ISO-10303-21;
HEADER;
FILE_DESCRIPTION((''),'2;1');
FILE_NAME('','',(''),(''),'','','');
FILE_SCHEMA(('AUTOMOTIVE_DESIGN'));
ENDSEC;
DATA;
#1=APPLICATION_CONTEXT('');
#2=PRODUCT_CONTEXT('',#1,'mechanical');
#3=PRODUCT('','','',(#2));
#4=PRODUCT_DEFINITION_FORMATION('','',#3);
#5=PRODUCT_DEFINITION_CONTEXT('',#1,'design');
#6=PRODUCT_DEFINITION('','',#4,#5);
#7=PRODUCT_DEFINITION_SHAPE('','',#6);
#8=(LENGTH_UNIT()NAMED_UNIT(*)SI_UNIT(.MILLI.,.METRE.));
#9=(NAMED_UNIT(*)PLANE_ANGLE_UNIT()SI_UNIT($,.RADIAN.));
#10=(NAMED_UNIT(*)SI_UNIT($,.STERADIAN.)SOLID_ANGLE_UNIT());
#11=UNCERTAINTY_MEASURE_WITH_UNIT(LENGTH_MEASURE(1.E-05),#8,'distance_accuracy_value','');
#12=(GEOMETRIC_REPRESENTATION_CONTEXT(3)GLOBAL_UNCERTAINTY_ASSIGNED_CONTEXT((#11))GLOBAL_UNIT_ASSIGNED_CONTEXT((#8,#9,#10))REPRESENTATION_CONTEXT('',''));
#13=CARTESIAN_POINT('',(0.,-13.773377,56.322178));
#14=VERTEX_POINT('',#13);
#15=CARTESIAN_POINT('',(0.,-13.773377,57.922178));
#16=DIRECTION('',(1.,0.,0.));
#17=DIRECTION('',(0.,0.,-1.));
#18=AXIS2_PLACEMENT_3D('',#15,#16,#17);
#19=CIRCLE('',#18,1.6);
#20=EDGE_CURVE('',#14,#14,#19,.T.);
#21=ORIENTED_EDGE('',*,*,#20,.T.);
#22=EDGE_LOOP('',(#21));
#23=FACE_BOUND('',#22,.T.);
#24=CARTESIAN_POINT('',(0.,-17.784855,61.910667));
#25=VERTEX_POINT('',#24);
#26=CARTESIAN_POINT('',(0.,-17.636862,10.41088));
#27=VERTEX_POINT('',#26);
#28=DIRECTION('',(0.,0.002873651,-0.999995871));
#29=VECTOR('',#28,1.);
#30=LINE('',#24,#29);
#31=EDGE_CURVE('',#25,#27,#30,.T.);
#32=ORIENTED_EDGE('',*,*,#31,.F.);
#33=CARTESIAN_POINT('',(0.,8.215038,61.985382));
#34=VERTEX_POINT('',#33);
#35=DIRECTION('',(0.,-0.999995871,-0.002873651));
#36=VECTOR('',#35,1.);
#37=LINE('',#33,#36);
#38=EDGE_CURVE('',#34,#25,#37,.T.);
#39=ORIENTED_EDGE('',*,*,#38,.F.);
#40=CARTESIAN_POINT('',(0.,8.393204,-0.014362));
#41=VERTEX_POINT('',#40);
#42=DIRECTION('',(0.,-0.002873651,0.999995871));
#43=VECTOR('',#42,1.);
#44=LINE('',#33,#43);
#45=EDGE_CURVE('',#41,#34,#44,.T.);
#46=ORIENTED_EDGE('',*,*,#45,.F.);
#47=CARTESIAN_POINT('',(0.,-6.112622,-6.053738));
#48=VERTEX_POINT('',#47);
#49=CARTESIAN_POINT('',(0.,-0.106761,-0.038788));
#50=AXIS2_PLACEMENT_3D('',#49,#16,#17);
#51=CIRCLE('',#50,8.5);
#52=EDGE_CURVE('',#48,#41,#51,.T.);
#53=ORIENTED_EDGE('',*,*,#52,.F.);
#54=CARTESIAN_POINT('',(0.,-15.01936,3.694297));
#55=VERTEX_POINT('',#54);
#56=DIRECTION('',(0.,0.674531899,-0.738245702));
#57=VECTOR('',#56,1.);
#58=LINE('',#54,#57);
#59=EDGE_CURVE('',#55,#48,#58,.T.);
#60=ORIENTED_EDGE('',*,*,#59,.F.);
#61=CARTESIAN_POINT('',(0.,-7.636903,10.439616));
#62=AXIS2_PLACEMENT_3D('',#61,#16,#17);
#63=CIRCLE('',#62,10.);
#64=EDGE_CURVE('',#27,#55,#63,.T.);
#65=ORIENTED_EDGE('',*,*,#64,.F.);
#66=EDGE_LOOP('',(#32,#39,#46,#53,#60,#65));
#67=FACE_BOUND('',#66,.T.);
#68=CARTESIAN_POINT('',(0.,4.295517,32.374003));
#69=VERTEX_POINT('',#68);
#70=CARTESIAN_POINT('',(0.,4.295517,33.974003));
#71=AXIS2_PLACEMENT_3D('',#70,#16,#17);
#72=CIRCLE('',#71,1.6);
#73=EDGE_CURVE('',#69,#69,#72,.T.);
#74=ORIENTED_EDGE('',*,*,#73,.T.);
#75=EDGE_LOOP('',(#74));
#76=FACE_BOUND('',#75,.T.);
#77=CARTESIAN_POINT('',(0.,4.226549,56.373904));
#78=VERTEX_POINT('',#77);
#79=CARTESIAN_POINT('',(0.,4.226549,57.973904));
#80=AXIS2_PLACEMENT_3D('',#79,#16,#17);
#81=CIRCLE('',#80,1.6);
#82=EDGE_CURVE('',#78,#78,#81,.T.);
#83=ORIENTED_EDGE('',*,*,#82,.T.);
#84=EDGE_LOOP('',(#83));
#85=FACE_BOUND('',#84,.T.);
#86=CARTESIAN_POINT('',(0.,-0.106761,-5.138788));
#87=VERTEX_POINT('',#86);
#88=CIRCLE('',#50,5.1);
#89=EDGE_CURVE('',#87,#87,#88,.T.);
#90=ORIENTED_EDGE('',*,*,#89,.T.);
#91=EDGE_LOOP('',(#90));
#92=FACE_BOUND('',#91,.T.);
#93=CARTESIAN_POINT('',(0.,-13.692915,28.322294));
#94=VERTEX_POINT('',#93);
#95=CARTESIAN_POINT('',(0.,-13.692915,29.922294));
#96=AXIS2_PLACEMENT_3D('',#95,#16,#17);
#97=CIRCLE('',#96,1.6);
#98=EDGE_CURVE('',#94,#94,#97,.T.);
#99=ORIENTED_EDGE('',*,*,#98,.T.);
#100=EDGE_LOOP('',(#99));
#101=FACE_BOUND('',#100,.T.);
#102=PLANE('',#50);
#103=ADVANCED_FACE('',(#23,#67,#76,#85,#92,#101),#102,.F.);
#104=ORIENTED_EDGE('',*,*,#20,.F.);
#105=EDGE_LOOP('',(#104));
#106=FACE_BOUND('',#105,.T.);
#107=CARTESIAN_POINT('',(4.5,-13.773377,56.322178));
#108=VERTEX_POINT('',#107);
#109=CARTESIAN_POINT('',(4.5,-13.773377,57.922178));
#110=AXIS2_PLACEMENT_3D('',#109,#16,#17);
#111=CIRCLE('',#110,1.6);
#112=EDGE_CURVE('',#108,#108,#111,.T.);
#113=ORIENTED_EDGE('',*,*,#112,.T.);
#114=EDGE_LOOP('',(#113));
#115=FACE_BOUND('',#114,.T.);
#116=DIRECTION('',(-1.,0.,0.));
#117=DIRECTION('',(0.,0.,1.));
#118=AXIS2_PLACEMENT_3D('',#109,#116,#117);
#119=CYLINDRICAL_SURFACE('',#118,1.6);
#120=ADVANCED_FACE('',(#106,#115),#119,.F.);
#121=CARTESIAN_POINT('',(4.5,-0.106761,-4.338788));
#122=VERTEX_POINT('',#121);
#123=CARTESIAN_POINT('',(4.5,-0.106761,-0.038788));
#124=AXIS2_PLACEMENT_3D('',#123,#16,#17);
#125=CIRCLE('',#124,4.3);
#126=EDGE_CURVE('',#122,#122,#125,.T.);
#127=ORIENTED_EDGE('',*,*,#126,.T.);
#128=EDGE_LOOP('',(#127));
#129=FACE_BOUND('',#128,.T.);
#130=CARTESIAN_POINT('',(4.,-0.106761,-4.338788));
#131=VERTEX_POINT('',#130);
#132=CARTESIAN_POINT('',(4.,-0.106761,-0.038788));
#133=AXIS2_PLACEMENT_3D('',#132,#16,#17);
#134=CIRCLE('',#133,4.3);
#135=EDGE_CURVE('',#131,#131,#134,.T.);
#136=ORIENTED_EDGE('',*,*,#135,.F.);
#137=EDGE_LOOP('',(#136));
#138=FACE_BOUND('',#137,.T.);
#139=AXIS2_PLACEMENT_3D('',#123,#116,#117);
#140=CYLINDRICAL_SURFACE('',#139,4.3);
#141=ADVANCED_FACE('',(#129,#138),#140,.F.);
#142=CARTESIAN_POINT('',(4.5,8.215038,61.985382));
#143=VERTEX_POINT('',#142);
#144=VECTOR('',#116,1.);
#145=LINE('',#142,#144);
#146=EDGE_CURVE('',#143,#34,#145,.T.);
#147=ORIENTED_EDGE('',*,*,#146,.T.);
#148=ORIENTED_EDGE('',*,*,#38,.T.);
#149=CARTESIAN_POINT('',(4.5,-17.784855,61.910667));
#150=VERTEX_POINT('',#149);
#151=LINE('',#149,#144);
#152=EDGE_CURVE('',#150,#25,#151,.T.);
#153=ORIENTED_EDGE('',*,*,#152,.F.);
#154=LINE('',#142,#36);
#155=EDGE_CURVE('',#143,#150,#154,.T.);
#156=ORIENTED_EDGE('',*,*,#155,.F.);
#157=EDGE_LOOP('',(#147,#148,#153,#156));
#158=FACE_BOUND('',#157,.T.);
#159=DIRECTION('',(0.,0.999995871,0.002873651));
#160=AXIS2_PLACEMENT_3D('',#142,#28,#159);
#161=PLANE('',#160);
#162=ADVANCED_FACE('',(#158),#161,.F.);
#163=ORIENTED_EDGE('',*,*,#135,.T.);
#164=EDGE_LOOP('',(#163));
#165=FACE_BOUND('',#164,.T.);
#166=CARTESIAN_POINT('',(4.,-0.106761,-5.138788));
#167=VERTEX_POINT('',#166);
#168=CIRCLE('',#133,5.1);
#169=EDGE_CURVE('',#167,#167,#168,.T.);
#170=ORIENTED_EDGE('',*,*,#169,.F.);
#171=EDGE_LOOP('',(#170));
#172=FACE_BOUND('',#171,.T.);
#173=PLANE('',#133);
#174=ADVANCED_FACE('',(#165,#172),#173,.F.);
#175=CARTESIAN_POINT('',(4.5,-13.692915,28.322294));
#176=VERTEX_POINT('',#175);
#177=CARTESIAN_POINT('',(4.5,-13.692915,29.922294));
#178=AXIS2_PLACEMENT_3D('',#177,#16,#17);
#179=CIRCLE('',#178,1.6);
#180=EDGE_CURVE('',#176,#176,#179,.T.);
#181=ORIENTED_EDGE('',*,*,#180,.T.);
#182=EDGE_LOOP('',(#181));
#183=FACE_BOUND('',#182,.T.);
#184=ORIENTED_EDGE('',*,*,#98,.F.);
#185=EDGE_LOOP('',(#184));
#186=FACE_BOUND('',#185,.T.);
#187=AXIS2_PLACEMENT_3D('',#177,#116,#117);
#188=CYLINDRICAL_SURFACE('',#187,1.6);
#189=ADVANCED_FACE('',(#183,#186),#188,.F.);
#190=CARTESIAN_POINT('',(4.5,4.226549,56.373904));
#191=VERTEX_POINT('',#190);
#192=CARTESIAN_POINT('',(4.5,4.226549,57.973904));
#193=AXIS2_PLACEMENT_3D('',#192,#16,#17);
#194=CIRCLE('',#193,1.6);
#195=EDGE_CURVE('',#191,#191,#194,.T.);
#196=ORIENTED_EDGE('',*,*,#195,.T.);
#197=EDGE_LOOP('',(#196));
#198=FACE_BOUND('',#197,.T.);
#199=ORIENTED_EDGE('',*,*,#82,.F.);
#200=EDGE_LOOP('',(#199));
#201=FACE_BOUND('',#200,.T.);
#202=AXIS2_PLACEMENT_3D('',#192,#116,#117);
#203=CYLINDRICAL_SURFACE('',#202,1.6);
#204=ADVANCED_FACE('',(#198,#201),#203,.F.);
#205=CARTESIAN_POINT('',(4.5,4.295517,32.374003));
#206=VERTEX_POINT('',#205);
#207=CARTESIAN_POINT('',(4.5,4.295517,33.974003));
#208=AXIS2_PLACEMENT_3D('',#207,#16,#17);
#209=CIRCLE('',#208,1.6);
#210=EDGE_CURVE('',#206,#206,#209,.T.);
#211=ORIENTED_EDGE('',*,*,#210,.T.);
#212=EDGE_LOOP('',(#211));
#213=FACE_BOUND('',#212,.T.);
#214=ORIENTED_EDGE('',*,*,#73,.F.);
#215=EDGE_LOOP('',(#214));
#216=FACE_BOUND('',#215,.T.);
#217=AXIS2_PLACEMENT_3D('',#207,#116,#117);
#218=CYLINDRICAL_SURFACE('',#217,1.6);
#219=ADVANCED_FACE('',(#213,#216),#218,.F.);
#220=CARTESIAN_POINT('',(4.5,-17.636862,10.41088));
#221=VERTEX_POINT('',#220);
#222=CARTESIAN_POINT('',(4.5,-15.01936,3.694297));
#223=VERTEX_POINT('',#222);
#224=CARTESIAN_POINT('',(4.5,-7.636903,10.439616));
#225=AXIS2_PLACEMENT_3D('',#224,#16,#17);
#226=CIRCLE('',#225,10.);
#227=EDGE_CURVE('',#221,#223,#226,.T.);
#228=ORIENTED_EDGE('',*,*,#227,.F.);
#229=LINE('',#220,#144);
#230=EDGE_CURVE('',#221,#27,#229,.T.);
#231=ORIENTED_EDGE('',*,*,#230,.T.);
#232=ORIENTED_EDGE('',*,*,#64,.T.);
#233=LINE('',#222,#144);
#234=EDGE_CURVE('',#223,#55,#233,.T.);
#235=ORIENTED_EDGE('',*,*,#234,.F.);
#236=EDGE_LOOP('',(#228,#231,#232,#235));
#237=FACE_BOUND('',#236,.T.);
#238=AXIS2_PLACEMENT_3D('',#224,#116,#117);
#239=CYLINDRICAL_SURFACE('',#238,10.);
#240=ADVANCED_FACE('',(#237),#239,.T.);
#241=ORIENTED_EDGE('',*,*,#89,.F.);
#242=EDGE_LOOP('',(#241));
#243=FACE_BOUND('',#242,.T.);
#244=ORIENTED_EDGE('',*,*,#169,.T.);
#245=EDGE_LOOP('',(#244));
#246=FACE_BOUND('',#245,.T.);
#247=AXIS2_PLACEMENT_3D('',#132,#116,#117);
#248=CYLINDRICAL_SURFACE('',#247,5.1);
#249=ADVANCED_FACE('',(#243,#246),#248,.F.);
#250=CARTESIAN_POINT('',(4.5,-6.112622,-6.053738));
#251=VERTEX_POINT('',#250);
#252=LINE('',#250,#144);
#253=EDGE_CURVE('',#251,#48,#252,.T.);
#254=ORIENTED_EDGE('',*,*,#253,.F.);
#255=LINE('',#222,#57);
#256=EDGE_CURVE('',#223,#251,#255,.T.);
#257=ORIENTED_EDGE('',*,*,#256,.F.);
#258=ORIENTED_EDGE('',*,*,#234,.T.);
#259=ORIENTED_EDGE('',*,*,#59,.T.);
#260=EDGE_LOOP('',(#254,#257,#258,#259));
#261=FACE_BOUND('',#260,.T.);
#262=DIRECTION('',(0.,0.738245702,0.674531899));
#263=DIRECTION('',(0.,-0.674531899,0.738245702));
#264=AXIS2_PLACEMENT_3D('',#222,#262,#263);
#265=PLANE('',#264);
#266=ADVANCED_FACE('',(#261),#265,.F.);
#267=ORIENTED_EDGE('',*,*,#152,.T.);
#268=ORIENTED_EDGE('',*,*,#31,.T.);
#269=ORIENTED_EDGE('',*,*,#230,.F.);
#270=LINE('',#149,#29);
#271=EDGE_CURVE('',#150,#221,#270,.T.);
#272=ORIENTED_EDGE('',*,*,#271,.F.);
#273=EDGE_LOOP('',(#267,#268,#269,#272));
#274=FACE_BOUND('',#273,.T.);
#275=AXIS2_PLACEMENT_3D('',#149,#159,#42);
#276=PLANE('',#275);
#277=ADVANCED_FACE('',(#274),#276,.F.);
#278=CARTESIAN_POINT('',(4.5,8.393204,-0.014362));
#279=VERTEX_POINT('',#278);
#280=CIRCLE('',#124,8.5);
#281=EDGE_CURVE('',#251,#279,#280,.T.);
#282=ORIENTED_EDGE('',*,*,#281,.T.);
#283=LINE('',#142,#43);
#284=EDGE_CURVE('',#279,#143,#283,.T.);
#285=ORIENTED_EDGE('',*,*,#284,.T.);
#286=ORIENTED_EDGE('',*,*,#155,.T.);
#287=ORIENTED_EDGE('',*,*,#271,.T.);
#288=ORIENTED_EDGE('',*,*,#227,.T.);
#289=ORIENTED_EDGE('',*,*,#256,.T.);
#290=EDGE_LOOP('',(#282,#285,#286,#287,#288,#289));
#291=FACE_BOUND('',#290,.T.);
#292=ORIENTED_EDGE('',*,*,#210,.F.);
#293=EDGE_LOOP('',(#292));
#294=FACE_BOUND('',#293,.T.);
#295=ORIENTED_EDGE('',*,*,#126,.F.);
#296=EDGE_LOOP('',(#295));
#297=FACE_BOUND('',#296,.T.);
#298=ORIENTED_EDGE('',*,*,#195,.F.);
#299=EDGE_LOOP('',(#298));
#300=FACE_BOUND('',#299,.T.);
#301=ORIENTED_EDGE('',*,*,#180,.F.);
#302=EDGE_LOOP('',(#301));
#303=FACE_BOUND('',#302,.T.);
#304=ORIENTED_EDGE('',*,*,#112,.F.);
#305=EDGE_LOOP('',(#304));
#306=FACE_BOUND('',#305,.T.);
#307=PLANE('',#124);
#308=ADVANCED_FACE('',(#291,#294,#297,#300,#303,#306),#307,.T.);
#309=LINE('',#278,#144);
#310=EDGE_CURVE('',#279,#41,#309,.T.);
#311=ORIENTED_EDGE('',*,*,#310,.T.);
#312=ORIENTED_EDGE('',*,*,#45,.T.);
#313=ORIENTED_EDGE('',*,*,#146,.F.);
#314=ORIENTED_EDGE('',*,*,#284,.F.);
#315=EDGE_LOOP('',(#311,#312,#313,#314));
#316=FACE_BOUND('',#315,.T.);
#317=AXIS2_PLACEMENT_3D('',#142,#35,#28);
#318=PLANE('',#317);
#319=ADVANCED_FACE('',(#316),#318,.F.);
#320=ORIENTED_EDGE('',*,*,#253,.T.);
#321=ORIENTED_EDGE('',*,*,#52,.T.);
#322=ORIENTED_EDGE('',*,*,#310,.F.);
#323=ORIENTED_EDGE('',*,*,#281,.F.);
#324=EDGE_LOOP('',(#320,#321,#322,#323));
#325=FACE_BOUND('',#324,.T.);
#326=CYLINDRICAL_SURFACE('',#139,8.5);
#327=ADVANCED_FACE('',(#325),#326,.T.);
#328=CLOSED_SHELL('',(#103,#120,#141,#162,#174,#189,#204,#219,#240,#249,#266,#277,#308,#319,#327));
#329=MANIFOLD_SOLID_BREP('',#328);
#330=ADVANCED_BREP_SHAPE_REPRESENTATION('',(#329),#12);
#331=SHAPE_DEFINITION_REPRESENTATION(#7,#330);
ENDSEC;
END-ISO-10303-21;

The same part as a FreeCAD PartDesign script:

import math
import FreeCAD as App
import Part
import Sketcher

V = App.Vector

doc = App.newDocument("Part")
body = doc.addObject("PartDesign::Body", "Body")

# Sketch on YZ plane
sketch1 = body.newObject("Sketcher::SketchObject", "Sketch")
sketch1.AttachmentSupport = (doc.getObject("YZ_Plane"), [""])
sketch1.MapMode = "FlatFace"
sketch1.addGeometry(Part.LineSegment(V(-17.8, 61.9, 0), V(-17.6, 10.4, 0)), False)
sketch1.addGeometry(Part.ArcOfCircle(Part.Circle(V(-7.6, 10.4, 0), V(0, 0, 1), 10), math.radians(-180), math.radians(-138)), False)
sketch1.addGeometry(Part.LineSegment(V(-15, 3.7, 0), V(-6.1, -6.1, 0)), False)
sketch1.addGeometry(Part.ArcOfCircle(Part.Circle(V(-0.1, 0, 0), V(0, 0, 1), 8.5), math.radians(-135), math.radians(0)), False)
sketch1.addGeometry(Part.LineSegment(V(8.4, 0, 0), V(8.2, 62, 0)), False)
sketch1.addGeometry(Part.LineSegment(V(8.2, 62, 0), V(-17.8, 61.9, 0)), False)
sketch1.addGeometry(Part.Circle(V(-13.8, 57.9, 0), V(0, 0, 1), 1.6), False)
sketch1.addGeometry(Part.Circle(V(-13.7, 29.9, 0), V(0, 0, 1), 1.6), False)
sketch1.addGeometry(Part.Circle(V(4.2, 58, 0), V(0, 0, 1), 1.6), False)
sketch1.addGeometry(Part.Circle(V(4.3, 34, 0), V(0, 0, 1), 1.6), False)
sketch1.addGeometry(Part.Circle(V(-0.1, 0, 0), V(0, 0, 1), 4.3), False)
sketch1.addConstraint(Sketcher.Constraint("Tangent", 0, 2, 1, 1))
sketch1.addConstraint(Sketcher.Constraint("Tangent", 1, 2, 2, 1))
sketch1.addConstraint(Sketcher.Constraint("Coincident", 2, 2, 3, 1))
sketch1.addConstraint(Sketcher.Constraint("Tangent", 3, 2, 4, 1))
sketch1.addConstraint(Sketcher.Constraint("Coincident", 4, 2, 5, 1))
sketch1.addConstraint(Sketcher.Constraint("Coincident", 5, 2, 0, 1))
sketch1.addConstraint(Sketcher.Constraint("Coincident", 10, 3, 3, 3))
sketch1.addConstraint(Sketcher.Constraint("Equal", 6, 7))
sketch1.addConstraint(Sketcher.Constraint("Equal", 7, 8))
sketch1.addConstraint(Sketcher.Constraint("Equal", 8, 9))
sketch1.addConstraint(Sketcher.Constraint("Parallel", 0, 4))
sketch1.addConstraint(Sketcher.Constraint("Perpendicular", 4, 5))
sketch1.addConstraint(Sketcher.Constraint("Radius", 1, 10.0))
sketch1.addConstraint(Sketcher.Constraint("Diameter", 6, 3.2))
sketch1.addConstraint(Sketcher.Constraint("Diameter", 10, 8.6))
sketch1.addConstraint(Sketcher.Constraint("Radius", 3, 8.5))
sketch1.addConstraint(Sketcher.Constraint("Distance", 4, 62.0))
sketch1.addConstraint(Sketcher.Constraint("Distance", 5, 26.0))
sketch1.addConstraint(Sketcher.Constraint("Distance", 0, 51.5))
sketch1.addConstraint(Sketcher.Constraint("DistanceY", 9, 3, 8, 3, 23.999901))
sketch1.addConstraint(Sketcher.Constraint("DistanceX", 0, 2, 3, 3, 17.530101))
sketch1.addConstraint(Sketcher.Constraint("DistanceX", 0, 2, 1, 2, 2.617502))
sketch1.addConstraint(Sketcher.Constraint("DistanceX", 3, 3, -1, 1, 0.106761))
sketch1.addConstraint(Sketcher.Constraint("DistanceY", -1, 1, 6, 3, 57.922178))
sketch1.addConstraint(Sketcher.Constraint("DistanceX", -1, 1, 8, 3, 4.226549))
sketch1.addConstraint(Sketcher.Constraint("DistanceY", -1, 1, 0, 2, 10.41088))
sketch1.addConstraint(Sketcher.Constraint("DistanceX", 7, 3, 1, 3, 6.056011))
sketch1.addConstraint(Sketcher.Constraint("DistanceY", 3, 3, 7, 3, 29.961082))
sketch1.addConstraint(Sketcher.Constraint("DistanceY", 7, 3, 8, 3, 28.05161))
sketch1.addConstraint(Sketcher.Constraint("DistanceX", 7, 3, 9, 3, 17.988431))
sketch1.addConstraint(Sketcher.Constraint("DistanceX", 5, 2, 6, 3, 4.011478))
pad1 = body.newObject("PartDesign::Pad", "Pad")
pad1.Profile = sketch1
pad1.Length = 4.5

# Sketch on YZ plane
sketch2 = body.newObject("Sketcher::SketchObject", "Sketch001")
sketch2.AttachmentSupport = (doc.getObject("YZ_Plane"), [""])
sketch2.MapMode = "FlatFace"
sketch2.addGeometry(Part.Circle(V(0, 0, 0), V(0, 0, 1), 5), False)
sketch2.addConstraint(Sketcher.Constraint("Diameter", 0, 10.2))
sketch2.addConstraint(Sketcher.Constraint("DistanceX", 0, 3, -1, 1, 0.106761))
sketch2.addConstraint(Sketcher.Constraint("DistanceY", 0, 3, -1, 1, 0.038788))
pocket1 = body.newObject("PartDesign::Pocket", "Pocket")
pocket1.Profile = sketch2
pocket1.Length = 4
pocket1.Reversed = True

doc.recompute()
